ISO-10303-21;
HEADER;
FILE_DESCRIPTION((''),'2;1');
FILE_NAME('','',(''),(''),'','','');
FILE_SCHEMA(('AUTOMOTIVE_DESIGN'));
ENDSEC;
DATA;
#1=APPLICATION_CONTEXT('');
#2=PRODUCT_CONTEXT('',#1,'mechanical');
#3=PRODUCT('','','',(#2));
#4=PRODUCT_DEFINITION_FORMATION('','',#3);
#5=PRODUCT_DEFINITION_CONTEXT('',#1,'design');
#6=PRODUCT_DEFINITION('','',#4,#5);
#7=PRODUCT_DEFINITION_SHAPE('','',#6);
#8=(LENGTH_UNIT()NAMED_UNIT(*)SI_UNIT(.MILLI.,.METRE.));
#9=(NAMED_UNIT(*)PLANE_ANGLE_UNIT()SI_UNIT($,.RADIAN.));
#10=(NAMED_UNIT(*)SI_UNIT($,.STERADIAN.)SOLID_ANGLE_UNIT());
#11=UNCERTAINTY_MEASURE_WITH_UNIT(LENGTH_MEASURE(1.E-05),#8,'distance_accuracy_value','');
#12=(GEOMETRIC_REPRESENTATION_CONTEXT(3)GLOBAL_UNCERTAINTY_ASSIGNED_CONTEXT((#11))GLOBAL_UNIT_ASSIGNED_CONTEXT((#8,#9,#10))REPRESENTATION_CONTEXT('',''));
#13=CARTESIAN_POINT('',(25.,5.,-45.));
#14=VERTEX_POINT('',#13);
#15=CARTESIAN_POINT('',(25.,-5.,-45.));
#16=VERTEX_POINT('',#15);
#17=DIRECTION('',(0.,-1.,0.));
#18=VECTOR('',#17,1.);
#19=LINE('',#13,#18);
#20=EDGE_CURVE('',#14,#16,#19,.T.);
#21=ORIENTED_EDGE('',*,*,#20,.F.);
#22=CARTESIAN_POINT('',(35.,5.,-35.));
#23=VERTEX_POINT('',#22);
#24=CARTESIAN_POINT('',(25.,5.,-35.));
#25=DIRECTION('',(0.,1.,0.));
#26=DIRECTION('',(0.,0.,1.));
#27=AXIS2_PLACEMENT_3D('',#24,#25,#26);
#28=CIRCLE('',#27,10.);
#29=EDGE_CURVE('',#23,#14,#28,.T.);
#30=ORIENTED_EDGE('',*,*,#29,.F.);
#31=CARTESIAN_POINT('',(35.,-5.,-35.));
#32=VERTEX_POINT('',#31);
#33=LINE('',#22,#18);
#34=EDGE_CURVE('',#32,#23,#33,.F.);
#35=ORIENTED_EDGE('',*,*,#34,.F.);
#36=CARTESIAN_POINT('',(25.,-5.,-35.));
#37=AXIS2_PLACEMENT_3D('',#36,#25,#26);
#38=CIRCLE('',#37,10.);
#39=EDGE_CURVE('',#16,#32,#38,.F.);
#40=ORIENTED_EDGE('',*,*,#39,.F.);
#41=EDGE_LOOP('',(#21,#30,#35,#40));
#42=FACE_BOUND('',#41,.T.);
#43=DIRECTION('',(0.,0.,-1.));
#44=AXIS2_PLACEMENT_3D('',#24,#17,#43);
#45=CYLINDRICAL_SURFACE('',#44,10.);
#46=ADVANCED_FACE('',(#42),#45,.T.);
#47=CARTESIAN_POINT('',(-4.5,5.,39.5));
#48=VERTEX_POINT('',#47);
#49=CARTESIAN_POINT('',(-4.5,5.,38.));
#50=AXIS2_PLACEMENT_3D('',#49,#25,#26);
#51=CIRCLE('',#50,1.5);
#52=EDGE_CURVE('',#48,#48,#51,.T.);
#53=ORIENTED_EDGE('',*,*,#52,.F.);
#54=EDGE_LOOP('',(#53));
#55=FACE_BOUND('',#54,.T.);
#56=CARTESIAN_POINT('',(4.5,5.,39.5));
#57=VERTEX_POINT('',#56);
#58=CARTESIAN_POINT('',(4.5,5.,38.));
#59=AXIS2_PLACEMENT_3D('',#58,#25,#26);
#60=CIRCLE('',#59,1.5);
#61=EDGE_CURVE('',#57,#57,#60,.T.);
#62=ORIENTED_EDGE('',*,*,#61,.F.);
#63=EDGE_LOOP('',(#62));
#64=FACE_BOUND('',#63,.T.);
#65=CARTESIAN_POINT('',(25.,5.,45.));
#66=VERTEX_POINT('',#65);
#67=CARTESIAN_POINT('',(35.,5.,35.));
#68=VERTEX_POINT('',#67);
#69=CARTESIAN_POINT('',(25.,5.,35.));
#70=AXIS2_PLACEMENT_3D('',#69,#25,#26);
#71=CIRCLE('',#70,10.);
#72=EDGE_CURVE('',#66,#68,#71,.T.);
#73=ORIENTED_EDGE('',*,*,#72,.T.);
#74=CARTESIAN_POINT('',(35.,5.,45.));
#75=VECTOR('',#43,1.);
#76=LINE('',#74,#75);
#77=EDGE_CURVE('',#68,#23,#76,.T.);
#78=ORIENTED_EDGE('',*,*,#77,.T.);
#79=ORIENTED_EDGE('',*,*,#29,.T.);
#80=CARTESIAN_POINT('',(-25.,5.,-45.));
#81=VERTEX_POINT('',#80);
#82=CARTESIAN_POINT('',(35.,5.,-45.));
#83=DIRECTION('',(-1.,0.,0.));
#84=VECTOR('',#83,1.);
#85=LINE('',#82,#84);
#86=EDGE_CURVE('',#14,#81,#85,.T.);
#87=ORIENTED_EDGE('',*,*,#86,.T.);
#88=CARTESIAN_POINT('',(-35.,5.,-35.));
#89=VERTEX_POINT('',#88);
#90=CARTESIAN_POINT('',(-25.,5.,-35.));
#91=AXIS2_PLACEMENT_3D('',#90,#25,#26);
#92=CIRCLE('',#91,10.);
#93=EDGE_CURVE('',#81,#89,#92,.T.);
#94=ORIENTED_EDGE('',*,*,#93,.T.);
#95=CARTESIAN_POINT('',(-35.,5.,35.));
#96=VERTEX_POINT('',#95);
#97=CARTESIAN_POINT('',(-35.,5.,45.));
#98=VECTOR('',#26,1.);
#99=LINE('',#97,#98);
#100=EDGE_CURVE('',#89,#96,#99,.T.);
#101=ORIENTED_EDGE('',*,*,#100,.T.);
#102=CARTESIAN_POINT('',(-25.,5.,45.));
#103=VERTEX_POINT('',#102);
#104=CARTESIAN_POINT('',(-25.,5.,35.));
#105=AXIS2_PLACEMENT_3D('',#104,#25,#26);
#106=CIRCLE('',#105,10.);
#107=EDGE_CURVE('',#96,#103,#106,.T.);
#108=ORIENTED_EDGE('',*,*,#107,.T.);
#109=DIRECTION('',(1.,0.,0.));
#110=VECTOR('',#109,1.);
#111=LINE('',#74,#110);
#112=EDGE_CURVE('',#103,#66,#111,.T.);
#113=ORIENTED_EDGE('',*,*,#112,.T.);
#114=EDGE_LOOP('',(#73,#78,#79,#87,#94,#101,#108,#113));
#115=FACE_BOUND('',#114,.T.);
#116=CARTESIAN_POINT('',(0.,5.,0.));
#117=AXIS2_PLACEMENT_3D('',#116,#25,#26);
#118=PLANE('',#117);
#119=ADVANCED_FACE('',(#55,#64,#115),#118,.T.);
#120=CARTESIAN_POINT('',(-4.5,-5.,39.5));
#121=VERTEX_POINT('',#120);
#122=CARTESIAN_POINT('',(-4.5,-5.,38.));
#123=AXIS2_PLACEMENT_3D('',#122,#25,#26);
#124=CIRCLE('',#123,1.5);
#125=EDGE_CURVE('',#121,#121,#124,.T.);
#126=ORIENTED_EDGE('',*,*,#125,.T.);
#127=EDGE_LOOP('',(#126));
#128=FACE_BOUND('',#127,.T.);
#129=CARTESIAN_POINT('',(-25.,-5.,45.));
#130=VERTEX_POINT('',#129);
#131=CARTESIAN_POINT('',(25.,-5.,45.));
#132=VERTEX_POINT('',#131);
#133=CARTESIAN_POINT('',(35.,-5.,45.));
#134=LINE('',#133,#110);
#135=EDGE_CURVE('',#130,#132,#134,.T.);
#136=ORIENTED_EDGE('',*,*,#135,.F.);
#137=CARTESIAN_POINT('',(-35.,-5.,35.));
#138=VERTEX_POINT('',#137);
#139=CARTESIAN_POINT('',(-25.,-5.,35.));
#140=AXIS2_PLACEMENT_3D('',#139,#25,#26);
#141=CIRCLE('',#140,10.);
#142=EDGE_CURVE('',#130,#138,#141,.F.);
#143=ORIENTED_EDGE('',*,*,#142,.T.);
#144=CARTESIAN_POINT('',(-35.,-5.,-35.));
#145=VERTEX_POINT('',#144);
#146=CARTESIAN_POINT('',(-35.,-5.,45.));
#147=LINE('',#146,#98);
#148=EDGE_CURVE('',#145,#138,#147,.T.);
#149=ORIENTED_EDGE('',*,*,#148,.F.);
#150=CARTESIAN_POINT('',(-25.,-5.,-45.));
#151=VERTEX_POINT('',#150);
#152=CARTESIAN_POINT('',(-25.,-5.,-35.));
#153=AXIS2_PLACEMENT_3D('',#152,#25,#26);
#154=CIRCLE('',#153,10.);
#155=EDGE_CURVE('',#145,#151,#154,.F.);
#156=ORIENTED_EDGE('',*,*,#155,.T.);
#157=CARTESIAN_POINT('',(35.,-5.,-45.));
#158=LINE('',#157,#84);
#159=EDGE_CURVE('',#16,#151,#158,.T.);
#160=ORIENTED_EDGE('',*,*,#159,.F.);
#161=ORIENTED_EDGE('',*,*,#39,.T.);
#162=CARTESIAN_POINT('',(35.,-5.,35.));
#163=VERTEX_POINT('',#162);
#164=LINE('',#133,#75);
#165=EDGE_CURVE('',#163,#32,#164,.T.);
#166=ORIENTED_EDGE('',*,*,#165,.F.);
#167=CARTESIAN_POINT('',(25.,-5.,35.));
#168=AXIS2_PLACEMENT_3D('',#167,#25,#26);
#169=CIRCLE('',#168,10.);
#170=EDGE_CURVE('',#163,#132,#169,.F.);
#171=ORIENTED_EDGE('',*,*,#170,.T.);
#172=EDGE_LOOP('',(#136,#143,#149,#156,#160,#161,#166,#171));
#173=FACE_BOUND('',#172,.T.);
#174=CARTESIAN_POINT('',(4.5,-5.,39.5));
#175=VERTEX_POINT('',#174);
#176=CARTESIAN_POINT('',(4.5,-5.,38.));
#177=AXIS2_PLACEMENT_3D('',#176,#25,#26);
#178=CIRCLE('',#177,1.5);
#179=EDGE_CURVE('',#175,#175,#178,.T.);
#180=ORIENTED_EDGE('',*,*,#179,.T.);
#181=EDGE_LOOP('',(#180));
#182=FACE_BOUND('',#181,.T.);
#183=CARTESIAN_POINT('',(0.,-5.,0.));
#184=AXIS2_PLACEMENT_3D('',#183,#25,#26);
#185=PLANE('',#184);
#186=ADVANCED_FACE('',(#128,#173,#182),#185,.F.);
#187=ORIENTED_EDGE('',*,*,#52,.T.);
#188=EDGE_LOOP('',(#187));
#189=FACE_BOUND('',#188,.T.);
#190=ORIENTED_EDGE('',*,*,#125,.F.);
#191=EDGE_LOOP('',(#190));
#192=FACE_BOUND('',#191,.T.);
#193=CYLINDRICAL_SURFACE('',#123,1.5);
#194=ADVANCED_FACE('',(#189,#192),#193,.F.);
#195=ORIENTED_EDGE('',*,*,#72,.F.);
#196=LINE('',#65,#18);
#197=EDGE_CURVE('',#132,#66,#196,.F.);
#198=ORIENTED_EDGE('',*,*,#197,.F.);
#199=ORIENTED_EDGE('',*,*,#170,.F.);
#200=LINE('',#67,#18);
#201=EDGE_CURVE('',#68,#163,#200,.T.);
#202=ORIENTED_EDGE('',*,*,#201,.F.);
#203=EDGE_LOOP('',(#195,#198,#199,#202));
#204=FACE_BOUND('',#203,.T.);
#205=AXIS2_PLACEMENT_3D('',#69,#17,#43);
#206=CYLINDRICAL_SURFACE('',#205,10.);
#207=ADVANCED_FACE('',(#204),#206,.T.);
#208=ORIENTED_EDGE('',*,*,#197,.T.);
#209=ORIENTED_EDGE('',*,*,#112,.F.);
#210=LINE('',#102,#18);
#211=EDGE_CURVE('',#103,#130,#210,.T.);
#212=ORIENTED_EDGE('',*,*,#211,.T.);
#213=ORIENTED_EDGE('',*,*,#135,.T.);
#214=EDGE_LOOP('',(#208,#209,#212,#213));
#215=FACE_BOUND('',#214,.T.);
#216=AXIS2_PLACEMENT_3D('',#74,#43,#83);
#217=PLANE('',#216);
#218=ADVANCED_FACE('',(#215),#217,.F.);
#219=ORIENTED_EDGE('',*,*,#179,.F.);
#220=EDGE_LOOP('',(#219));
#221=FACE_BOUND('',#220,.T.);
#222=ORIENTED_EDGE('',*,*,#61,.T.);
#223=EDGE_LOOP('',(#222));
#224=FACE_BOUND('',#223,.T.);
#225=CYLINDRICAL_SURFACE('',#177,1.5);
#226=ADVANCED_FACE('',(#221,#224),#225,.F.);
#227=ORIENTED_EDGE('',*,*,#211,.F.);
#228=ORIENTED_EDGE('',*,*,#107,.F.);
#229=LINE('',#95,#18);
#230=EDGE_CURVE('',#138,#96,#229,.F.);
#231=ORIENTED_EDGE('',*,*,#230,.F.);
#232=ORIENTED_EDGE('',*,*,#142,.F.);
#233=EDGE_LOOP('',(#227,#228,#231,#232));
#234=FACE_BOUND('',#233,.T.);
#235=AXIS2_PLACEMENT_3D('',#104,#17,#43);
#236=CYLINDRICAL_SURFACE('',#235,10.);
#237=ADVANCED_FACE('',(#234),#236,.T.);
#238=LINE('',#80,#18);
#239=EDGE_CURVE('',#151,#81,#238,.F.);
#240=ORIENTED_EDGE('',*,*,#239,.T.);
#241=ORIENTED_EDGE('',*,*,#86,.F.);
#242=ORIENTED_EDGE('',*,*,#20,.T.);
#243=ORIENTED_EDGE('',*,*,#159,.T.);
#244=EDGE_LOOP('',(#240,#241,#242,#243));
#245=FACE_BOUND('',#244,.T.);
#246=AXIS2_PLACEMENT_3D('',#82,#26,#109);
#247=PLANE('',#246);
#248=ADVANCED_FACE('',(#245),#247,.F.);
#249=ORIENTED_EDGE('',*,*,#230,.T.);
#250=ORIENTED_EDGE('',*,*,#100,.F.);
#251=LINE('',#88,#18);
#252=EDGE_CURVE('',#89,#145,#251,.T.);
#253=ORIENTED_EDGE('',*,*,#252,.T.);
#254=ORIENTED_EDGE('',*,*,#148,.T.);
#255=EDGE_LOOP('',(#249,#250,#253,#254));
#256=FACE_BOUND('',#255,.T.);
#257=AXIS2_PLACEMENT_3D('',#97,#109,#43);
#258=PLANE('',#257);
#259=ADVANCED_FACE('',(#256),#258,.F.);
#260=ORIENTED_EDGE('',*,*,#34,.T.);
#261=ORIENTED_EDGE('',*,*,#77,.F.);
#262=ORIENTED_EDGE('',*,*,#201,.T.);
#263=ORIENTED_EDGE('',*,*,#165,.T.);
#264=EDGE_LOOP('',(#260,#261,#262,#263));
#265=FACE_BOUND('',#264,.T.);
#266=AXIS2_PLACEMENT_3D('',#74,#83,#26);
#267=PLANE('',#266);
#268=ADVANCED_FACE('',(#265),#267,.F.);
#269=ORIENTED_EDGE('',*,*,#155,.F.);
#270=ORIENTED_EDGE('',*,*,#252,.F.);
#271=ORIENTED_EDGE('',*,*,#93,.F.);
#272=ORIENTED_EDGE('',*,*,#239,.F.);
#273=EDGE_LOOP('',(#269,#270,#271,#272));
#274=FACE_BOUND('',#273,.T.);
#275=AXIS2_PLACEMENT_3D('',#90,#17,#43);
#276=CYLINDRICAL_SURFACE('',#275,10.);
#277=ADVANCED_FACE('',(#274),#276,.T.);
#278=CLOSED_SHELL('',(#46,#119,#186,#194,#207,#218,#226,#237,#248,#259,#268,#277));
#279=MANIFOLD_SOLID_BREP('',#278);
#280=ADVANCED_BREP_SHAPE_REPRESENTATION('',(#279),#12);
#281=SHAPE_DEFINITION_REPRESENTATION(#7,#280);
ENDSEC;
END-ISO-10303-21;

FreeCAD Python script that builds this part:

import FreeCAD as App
import Part
import Sketcher
from FreeCAD import Vector
Q = App.Units.Quantity


def edges_at(feature, points):
    """Names of the edges that pass closest to the given points."""
    edges = feature.Shape.Edges
    near = lambda p: min(range(len(edges)), key=lambda i: edges[i].distToShape(Part.Vertex(*p))[0])
    return sorted({f"Edge{near(p) + 1}" for p in points})

doc = App.newDocument("Part")
body = doc.addObject("PartDesign::Body", "Body")

sketch1 = body.newObject("Sketcher::SketchObject", "Sketch")
sketch1.AttachmentSupport = (doc.getObject("XZ_Plane"), [""])
sketch1.MapMode = "FlatFace"
sketch1.addGeometry(Part.LineSegment(Vector(-35, -45, 0), Vector(-35, 45, 0)), False)
sketch1.addGeometry(Part.LineSegment(Vector(-35, 45, 0), Vector(35, 45, 0)), False)
sketch1.addGeometry(Part.LineSegment(Vector(35, 45, 0), Vector(35, -45, 0)), False)
sketch1.addGeometry(Part.LineSegment(Vector(35, -45, 0), Vector(-35, -45, 0)), False)
sketch1.addConstraint(Sketcher.Constraint("Coincident", 0, 2, 1, 1))
sketch1.addConstraint(Sketcher.Constraint("Coincident", 1, 2, 2, 1))
sketch1.addConstraint(Sketcher.Constraint("Coincident", 2, 2, 3, 1))
sketch1.addConstraint(Sketcher.Constraint("Coincident", 3, 2, 0, 1))
sketch1.addConstraint(Sketcher.Constraint("Vertical", 0))
sketch1.addConstraint(Sketcher.Constraint("Horizontal", 1))
sketch1.addConstraint(Sketcher.Constraint("Vertical", 2))
sketch1.addConstraint(Sketcher.Constraint("Horizontal", 3))
sketch1.addConstraint(Sketcher.Constraint("Symmetric", 0, 2, 2, 2, -1, 1))
sketch1.addConstraint(Sketcher.Constraint("DistanceX", 1, 1, 1, 2, Q("70 mm")))
sketch1.addConstraint(Sketcher.Constraint("DistanceY", 0, 1, 0, 2, Q("90 mm")))
pad1 = body.newObject("PartDesign::Pad", "Pad")
pad1.Profile = sketch1
pad1.Length = 10
pad1.Midplane = True
doc.recompute()

fillet = body.newObject("PartDesign::Fillet", "Fillet")
fillet.Base = (pad1, edges_at(pad1, [
    (-35, 0, -45),
    (35, 0, -45),
    (35, 0, 45),
    (-35, 0, 45),
]))
fillet.Radius = 10

sketch2 = body.newObject("Sketcher::SketchObject", "Sketch001")
sketch2.AttachmentSupport = (doc.getObject("XZ_Plane"), [""])
sketch2.MapMode = "FlatFace"
sketch2.AttachmentOffset = App.Placement(Vector(0, 0, -5), App.Rotation())
sketch2.addGeometry(Part.Circle(Vector(-4.5, 38, 0), Vector(0, 0, 1), 1.5), False)
sketch2.addGeometry(Part.Circle(Vector(4.5, 38, 0), Vector(0, 0, 1), 1.5), False)
sketch2.addConstraint(Sketcher.Constraint("Equal", 0, 1))
sketch2.addConstraint(Sketcher.Constraint("Symmetric", 0, 3, 1, 3, -2))
sketch2.addConstraint(Sketcher.Constraint("Diameter", 0, Q("3 mm")))
sketch2.addConstraint(Sketcher.Constraint("DistanceY", -1, 1, 0, 3, Q("38 mm")))
sketch2.addConstraint(Sketcher.Constraint("DistanceX", 0, 3, 1, 3, Q("9 mm")))
pocket1 = body.newObject("PartDesign::Pocket", "Pocket")
pocket1.Profile = sketch2
pocket1.Length = 10
pocket1.Reversed = True

doc.recompute()
